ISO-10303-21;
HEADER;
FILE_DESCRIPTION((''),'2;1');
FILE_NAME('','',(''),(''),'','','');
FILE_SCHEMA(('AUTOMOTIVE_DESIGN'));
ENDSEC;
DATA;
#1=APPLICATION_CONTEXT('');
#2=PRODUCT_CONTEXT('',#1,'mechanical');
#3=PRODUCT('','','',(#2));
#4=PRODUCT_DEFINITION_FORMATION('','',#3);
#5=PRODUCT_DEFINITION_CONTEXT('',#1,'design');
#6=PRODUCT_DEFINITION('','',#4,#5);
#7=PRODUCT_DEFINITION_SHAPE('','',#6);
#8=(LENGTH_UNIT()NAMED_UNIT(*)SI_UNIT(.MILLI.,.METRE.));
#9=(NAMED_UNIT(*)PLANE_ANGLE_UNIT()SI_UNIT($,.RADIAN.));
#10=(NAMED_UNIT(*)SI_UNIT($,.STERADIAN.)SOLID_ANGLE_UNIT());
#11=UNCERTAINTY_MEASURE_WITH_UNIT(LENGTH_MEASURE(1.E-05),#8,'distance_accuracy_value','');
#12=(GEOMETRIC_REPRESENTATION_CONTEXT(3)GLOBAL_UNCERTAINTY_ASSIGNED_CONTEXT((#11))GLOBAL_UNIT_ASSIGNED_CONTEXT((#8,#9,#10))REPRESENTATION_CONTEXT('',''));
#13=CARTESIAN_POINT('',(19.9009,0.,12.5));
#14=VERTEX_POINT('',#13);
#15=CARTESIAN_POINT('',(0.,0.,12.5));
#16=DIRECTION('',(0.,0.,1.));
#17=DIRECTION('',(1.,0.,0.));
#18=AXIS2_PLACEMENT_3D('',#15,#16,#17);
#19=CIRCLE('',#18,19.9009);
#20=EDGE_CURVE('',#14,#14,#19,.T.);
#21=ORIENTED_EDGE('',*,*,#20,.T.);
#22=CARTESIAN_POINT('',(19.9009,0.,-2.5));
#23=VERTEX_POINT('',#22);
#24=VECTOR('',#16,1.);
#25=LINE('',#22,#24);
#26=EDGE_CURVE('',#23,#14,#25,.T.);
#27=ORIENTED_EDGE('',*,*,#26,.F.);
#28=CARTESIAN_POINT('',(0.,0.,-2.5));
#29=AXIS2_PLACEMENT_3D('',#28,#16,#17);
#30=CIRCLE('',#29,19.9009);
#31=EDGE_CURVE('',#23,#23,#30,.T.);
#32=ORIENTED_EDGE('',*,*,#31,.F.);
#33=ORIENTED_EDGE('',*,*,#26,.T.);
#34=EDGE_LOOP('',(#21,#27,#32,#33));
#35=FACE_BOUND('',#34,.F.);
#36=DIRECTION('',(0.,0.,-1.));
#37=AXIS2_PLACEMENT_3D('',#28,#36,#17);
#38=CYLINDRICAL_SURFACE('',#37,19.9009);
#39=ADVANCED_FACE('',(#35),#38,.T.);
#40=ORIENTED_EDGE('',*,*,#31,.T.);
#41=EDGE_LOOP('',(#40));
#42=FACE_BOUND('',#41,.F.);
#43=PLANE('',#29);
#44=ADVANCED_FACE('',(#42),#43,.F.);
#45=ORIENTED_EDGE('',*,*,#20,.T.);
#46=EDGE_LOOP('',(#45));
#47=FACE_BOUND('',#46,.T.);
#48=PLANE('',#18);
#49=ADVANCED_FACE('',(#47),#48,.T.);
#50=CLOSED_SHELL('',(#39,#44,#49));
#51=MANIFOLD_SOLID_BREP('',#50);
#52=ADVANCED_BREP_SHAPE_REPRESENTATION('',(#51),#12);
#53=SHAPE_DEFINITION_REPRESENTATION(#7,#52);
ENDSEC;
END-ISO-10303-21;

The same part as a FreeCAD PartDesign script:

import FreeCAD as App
import Part
import Sketcher
from FreeCAD import Vector
Q = App.Units.Quantity

doc = App.newDocument("Part")
body = doc.addObject("PartDesign::Body", "Body")

# Sketch on XY plane
sketch1 = doc.addObject("Sketcher::SketchObject", "Sketch")
body.addObject(sketch1)
sketch1.AttachmentSupport = (doc.XY_Plane, [""])
sketch1.MapMode = "FlatFace"
sketch1.AttachmentOffset = App.Placement(Vector(0, 0, -2.5), App.Rotation())
sketch1.addGeometry(Part.Circle(Vector(0, 0, 0), Vector(0, 0, 1), 20), False)
sketch1.addConstraint(Sketcher.Constraint("Coincident", 0, 3, -1, 1))
sketch1.addConstraint(Sketcher.Constraint("Diameter", 0, Q("39.8018 mm")))
pad1 = doc.addObject("PartDesign::Pad", "Pad")
body.addObject(pad1)
pad1.Profile = sketch1
pad1.Length = 15

doc.recompute()
